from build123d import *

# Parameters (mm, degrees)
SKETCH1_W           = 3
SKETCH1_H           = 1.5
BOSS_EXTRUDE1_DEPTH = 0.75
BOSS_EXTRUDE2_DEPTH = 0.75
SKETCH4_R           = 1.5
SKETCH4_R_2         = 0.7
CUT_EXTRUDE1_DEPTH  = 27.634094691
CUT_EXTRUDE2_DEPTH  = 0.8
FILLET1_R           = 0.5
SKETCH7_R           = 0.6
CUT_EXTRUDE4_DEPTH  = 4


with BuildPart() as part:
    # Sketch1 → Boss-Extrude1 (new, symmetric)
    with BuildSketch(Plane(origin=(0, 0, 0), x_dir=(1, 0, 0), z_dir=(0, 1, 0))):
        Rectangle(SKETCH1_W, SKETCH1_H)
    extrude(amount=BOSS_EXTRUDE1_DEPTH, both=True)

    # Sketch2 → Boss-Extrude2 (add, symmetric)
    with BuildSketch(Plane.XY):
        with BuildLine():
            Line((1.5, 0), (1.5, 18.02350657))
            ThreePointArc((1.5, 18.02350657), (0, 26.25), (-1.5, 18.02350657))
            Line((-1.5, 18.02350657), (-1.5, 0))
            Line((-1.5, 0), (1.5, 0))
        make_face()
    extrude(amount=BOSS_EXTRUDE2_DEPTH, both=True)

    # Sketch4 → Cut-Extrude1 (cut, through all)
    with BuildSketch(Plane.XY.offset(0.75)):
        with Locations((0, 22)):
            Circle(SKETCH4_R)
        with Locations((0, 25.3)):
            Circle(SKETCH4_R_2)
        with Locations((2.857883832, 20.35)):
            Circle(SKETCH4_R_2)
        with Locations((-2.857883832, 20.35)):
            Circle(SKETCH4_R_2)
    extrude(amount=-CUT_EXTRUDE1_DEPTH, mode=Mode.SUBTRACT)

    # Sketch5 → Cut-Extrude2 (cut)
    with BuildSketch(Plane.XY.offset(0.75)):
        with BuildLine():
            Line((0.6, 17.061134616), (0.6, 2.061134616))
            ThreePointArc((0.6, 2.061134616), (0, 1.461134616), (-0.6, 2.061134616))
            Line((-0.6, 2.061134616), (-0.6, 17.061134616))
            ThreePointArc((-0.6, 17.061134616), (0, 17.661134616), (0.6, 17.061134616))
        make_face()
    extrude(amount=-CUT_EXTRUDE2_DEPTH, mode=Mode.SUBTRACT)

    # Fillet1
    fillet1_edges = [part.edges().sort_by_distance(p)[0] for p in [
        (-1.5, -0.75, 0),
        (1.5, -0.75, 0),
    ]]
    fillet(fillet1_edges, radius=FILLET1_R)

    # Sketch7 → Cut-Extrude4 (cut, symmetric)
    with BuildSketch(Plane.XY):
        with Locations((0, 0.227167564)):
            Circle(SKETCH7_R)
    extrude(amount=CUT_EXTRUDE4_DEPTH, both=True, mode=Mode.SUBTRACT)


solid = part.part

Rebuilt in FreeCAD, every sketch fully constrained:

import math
import FreeCAD as App
import Part
import Sketcher
from FreeCAD import Vector
Q = App.Units.Quantity


def edges_at(feature, points):
    """Names of the edges that pass closest to the given points."""
    edges = feature.Shape.Edges
    near = lambda p: min(range(len(edges)), key=lambda i: edges[i].distToShape(Part.Vertex(*p))[0])
    return sorted({f"Edge{near(p) + 1}" for p in points})


def add_polygon(sketch, points):
    """Adds a closed chain of lines whose ends are joined by coincident constraints."""
    first, n = sketch.GeometryCount, len(points)
    for a, b in zip(points, points[1:] + points[:1]):
        sketch.addGeometry(Part.LineSegment(App.Vector(*a, 0), App.Vector(*b, 0)), False)
    for i in range(n):
        sketch.addConstraint(Sketcher.Constraint("Coincident", first + i, 2, first + (i + 1) % n, 1))

doc = App.newDocument("Part")
body = doc.addObject("PartDesign::Body", "Body")

sketch1 = body.newObject("Sketcher::SketchObject", "Sketch")
sketch1.AttachmentSupport = (doc.getObject("XZ_Plane"), [""])
sketch1.MapMode = "FlatFace"
add_polygon(sketch1, [(-1.5, -0.8), (-1.5, 0.8), (1.5, 0.8), (1.5, -0.8)])
sketch1.addConstraint(Sketcher.Constraint("Vertical", 0))
sketch1.addConstraint(Sketcher.Constraint("Horizontal", 1))
sketch1.addConstraint(Sketcher.Constraint("Vertical", 2))
sketch1.addConstraint(Sketcher.Constraint("Horizontal", 3))
sketch1.addConstraint(Sketcher.Constraint("Symmetric", 0, 2, 2, 2, -1, 1))
sketch1.addConstraint(Sketcher.Constraint("DistanceX", 1, 1, 1, 2, Q("3 mm")))
sketch1.addConstraint(Sketcher.Constraint("DistanceY", 0, 1, 0, 2, Q("1.5 mm")))
pad1 = body.newObject("PartDesign::Pad", "Pad")
pad1.Profile = sketch1
pad1.Length = 1.5
pad1.Midplane = True

sketch2 = body.newObject("Sketcher::SketchObject", "Sketch001")
sketch2.AttachmentSupport = (doc.getObject("XY_Plane"), [""])
sketch2.MapMode = "FlatFace"
sketch2.addGeometry(Part.LineSegment(Vector(1.5, 0, 0), Vector(1.5, 18, 0)), False)
sketch2.addGeometry(Part.ArcOfCircle(Part.Circle(Vector(0, 22, 0), Vector(0, 0, 1), 4.2), math.radians(-69), math.radians(249)), False)
sketch2.addGeometry(Part.LineSegment(Vector(-1.5, 18, 0), Vector(-1.5, 0, 0)), False)
sketch2.addGeometry(Part.LineSegment(Vector(-1.5, 0, 0), Vector(1.5, 0, 0)), False)
sketch2.addConstraint(Sketcher.Constraint("Coincident", 0, 2, 1, 1))
sketch2.addConstraint(Sketcher.Constraint("Coincident", 1, 2, 2, 1))
sketch2.addConstraint(Sketcher.Constraint("Coincident", 2, 2, 3, 1))
sketch2.addConstraint(Sketcher.Constraint("Coincident", 3, 2, 0, 1))
sketch2.addConstraint(Sketcher.Constraint("Vertical", 0))
sketch2.addConstraint(Sketcher.Constraint("Vertical", 2))
sketch2.addConstraint(Sketcher.Constraint("Horizontal", 3))
sketch2.addConstraint(Sketcher.Constraint("Symmetric", 2, 2, 3, 2, -1, 1))
sketch2.addConstraint(Sketcher.Constraint("PointOnObject", 1, 3, -2))
sketch2.addConstraint(Sketcher.Constraint("DistanceX", 3, 1, 3, 2, Q("3 mm")))
sketch2.addConstraint(Sketcher.Constraint("Radius", 1, Q("4.25 mm")))
sketch2.addConstraint(Sketcher.Constraint("DistanceY", -1, 1, 1, 3, Q("22 mm")))
pad2 = body.newObject("PartDesign::Pad", "Pad001")
pad2.Profile = sketch2
pad2.Length = 1.5
pad2.Midplane = True

sketch3 = body.newObject("Sketcher::SketchObject", "Sketch002")
sketch3.AttachmentSupport = (doc.getObject("XY_Plane"), [""])
sketch3.MapMode = "FlatFace"
sketch3.AttachmentOffset = App.Placement(Vector(0, 0, 0.75), App.Rotation())
sketch3.addGeometry(Part.Circle(Vector(0, 22, 0), Vector(0, 0, 1), 1.5), False)
sketch3.addGeometry(Part.Circle(Vector(0, 25.3, 0), Vector(0, 0, 1), 0.7), False)
sketch3.addGeometry(Part.Circle(Vector(2.9, 20.4, 0), Vector(0, 0, 1), 0.7), False)
sketch3.addGeometry(Part.Circle(Vector(-2.9, 20.4, 0), Vector(0, 0, 1), 0.7), False)
sketch3.addConstraint(Sketcher.Constraint("Equal", 1, 2))
sketch3.addConstraint(Sketcher.Constraint("Equal", 2, 3))
sketch3.addConstraint(Sketcher.Constraint("Symmetric", 2, 3, 3, 3, -2))
sketch3.addConstraint(Sketcher.Constraint("PointOnObject", 0, 3, -2))
sketch3.addConstraint(Sketcher.Constraint("PointOnObject", 1, 3, -2))
sketch3.addConstraint(Sketcher.Constraint("Diameter", 0, Q("3 mm")))
sketch3.addConstraint(Sketcher.Constraint("Diameter", 1, Q("1.4 mm")))
sketch3.addConstraint(Sketcher.Constraint("DistanceY", -1, 1, 0, 3, Q("22 mm")))
sketch3.addConstraint(Sketcher.Constraint("DistanceY", -1, 1, 1, 3, Q("25.3 mm")))
sketch3.addConstraint(Sketcher.Constraint("DistanceY", -1, 1, 2, 3, Q("20.35 mm")))
sketch3.addConstraint(Sketcher.Constraint("DistanceX", -1, 1, 2, 3, Q("2.857884 mm")))
pocket1 = body.newObject("PartDesign::Pocket", "Pocket")
pocket1.Profile = sketch3
pocket1.Type = "ThroughAll"

sketch4 = body.newObject("Sketcher::SketchObject", "Sketch003")
sketch4.AttachmentSupport = (doc.getObject("XY_Plane"), [""])
sketch4.MapMode = "FlatFace"
sketch4.AttachmentOffset = App.Placement(Vector(0, 0, 0.75), App.Rotation())
sketch4.addGeometry(Part.LineSegment(Vector(0.6, 2.1, 0), Vector(0.6, 17.1, 0)), False)
sketch4.addGeometry(Part.ArcOfCircle(Part.Circle(Vector(0, 17.1, 0), Vector(0, 0, 1), 0.6), math.radians(0), math.radians(180)), False)
sketch4.addGeometry(Part.LineSegment(Vector(-0.6, 17.1, 0), Vector(-0.6, 2.1, 0)), False)
sketch4.addGeometry(Part.ArcOfCircle(Part.Circle(Vector(0, 2.1, 0), Vector(0, 0, 1), 0.6), math.radians(180), math.radians(360)), False)
sketch4.addConstraint(Sketcher.Constraint("Tangent", 0, 2, 1, 1))
sketch4.addConstraint(Sketcher.Constraint("Tangent", 1, 2, 2, 1))
sketch4.addConstraint(Sketcher.Constraint("Tangent", 2, 2, 3, 1))
sketch4.addConstraint(Sketcher.Constraint("Tangent", 3, 2, 0, 1))
sketch4.addConstraint(Sketcher.Constraint("Vertical", 0))
sketch4.addConstraint(Sketcher.Constraint("Vertical", 2))
sketch4.addConstraint(Sketcher.Constraint("PointOnObject", 1, 3, -2))
sketch4.addConstraint(Sketcher.Constraint("Radius", 1, Q("0.6 mm")))
sketch4.addConstraint(Sketcher.Constraint("DistanceY", 0, 1, 0, 2, Q("15 mm")))
sketch4.addConstraint(Sketcher.Constraint("DistanceY", -1, 1, 1, 3, Q("17.061135 mm")))
pocket2 = body.newObject("PartDesign::Pocket", "Pocket001")
pocket2.Profile = sketch4
pocket2.Length = 0.8
doc.recompute()

fillet = body.newObject("PartDesign::Fillet", "Fillet")
fillet.Base = (pocket2, edges_at(pocket2, [(-1.5, -0.75, 0), (1.5, -0.75, 0)]))
fillet.Radius = 0.5

sketch5 = body.newObject("Sketcher::SketchObject", "Sketch004")
sketch5.AttachmentSupport = (doc.getObject("XY_Plane"), [""])
sketch5.MapMode = "FlatFace"
sketch5.addGeometry(Part.Circle(Vector(0, 0.2, 0), Vector(0, 0, 1), 0.6), False)
sketch5.addConstraint(Sketcher.Constraint("PointOnObject", 0, 3, -2))
sketch5.addConstraint(Sketcher.Constraint("Diameter", 0, Q("1.2 mm")))
sketch5.addConstraint(Sketcher.Constraint("DistanceY", -1, 1, 0, 3, Q("0.227168 mm")))
pocket3 = body.newObject("PartDesign::Pocket", "Pocket002")
pocket3.Profile = sketch5
pocket3.Length = 8
pocket3.Midplane = True

doc.recompute()
